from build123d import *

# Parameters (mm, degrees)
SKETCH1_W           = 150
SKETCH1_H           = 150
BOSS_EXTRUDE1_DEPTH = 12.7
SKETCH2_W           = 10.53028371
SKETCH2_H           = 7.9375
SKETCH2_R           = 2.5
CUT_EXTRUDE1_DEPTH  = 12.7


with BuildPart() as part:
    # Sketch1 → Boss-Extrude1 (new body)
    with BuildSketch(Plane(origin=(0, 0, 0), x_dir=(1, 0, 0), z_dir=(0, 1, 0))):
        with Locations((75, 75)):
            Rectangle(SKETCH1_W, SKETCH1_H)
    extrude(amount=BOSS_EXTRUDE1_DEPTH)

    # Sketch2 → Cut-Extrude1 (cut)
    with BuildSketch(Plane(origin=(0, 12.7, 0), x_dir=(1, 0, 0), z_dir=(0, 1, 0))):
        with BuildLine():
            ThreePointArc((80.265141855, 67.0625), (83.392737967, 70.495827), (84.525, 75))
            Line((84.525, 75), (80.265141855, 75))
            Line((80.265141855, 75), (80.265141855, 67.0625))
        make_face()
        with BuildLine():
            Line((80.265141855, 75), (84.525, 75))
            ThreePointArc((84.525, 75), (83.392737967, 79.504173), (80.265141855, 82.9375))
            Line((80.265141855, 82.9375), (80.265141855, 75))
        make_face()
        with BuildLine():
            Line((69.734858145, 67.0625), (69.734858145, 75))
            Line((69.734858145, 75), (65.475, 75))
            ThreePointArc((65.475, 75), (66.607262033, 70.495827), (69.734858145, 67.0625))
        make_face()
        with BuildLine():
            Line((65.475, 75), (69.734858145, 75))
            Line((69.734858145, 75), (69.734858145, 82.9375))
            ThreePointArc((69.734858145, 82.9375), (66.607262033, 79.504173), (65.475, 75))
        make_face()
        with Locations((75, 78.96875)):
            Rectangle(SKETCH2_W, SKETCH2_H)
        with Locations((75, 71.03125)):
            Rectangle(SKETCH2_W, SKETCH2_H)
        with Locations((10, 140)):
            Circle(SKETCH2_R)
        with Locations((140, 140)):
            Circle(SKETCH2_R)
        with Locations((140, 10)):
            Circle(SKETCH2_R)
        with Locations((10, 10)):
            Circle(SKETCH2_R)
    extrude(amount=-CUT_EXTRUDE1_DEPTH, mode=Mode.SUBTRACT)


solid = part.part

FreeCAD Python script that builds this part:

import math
import FreeCAD as App
import Part
import Sketcher


def add_polygon(sketch, points):
    """Adds a closed chain of lines whose ends are joined by coincident constraints."""
    first, n = sketch.GeometryCount, len(points)
    for a, b in zip(points, points[1:] + points[:1]):
        sketch.addGeometry(Part.LineSegment(App.Vector(*a, 0), App.Vector(*b, 0)), False)
    for i in range(n):
        sketch.addConstraint(Sketcher.Constraint("Coincident", first + i, 2, first + (i + 1) % n, 1))

doc = App.newDocument("Part")
body = doc.addObject("PartDesign::Body", "Body")

sketch1 = body.newObject("Sketcher::SketchObject", "Sketch")
sketch1.AttachmentSupport = (doc.getObject("XZ_Plane"), [""])
sketch1.MapMode = "FlatFace"
add_polygon(sketch1, [(0, -150), (0, 0), (150, 0), (150, -150)])
sketch1.addConstraint([
    Sketcher.Constraint("Vertical", 0),
    Sketcher.Constraint("Horizontal", 1),
    Sketcher.Constraint("Vertical", 2),
    Sketcher.Constraint("Horizontal", 3),
    Sketcher.Constraint("Coincident", 0, 2, -1, 1),
    Sketcher.Constraint("Equal", 3, 0),
    Sketcher.Constraint("DistanceX", 1, 1, 1, 2, 150.0),
])
pad1 = body.newObject("PartDesign::Pad", "Pad")
pad1.Profile = sketch1
pad1.Length = 12.7
pad1.Reversed = True

sketch2 = body.newObject("Sketcher::SketchObject", "Sketch001")
sketch2.AttachmentSupport = (doc.getObject("XZ_Plane"), [""])
sketch2.MapMode = "FlatFace"
sketch2.AttachmentOffset = App.Placement(App.Vector(0, 0, -12.7), App.Rotation())
sketch2.addGeometry([
    Part.ArcOfCircle(Part.Circle(App.Vector(75, -75, 0), App.Vector(0, 0, 1), 9.5), math.radians(0), math.radians(56)),
    Part.ArcOfCircle(Part.Circle(App.Vector(75, -75, 0), App.Vector(0, 0, 1), 9.5), math.radians(-56), math.radians(0)),
    Part.LineSegment(App.Vector(80.3, -82.9, 0), App.Vector(69.7, -82.9, 0)),
    Part.ArcOfCircle(Part.Circle(App.Vector(75, -75, 0), App.Vector(0, 0, 1), 9.5), math.radians(-180), math.radians(-124)),
    Part.ArcOfCircle(Part.Circle(App.Vector(75, -75, 0), App.Vector(0, 0, 1), 9.5), math.radians(124), math.radians(180)),
    Part.LineSegment(App.Vector(69.7, -67.1, 0), App.Vector(80.3, -67.1, 0)),
    Part.Circle(App.Vector(10, -140, 0), App.Vector(0, 0, 1), 2.5),
    Part.Circle(App.Vector(140, -140, 0), App.Vector(0, 0, 1), 2.5),
    Part.Circle(App.Vector(140, -10, 0), App.Vector(0, 0, 1), 2.5),
    Part.Circle(App.Vector(10, -10, 0), App.Vector(0, 0, 1), 2.5),
], False)
sketch2.addConstraint([
    Sketcher.Constraint("Tangent", 0, 1, 1, 2),
    Sketcher.Constraint("Coincident", 1, 1, 2, 1),
    Sketcher.Constraint("Coincident", 2, 2, 3, 2),
    Sketcher.Constraint("Tangent", 3, 1, 4, 2),
    Sketcher.Constraint("Coincident", 4, 1, 5, 1),
    Sketcher.Constraint("Coincident", 5, 2, 0, 2),
    Sketcher.Constraint("Horizontal", 2),
    Sketcher.Constraint("Horizontal", 5),
    Sketcher.Constraint("Coincident", 3, 3, 0, 3),
    Sketcher.Constraint("Equal", 0, 1),
    Sketcher.Constraint("Equal", 1, 3),
    Sketcher.Constraint("Equal", 3, 4),
    Sketcher.Constraint("Equal", 6, 7),
    Sketcher.Constraint("Equal", 7, 8),
    Sketcher.Constraint("Equal", 8, 9),
    Sketcher.Constraint("Horizontal", 6, 3, 7, 3),
    Sketcher.Constraint("Horizontal", 8, 3, 9, 3),
    Sketcher.Constraint("Horizontal", 4, 3, 0, 1),
    Sketcher.Constraint("Horizontal", 0, 1, 3, 1),
    Sketcher.Constraint("Vertical", 7, 3, 8, 3),
    Sketcher.Constraint("Vertical", 6, 3, 9, 3),
    Sketcher.Constraint("Vertical", 2, 2, 4, 1),
    Sketcher.Constraint("Diameter", 6, 5.0),
    Sketcher.Constraint("DistanceX", -1, 1, 0, 3, 75.0),
    Sketcher.Constraint("DistanceY", 0, 3, -1, 1, 75.0),
    Sketcher.Constraint("DistanceX", -1, 1, 6, 3, 10.0),
    Sketcher.Constraint("DistanceY", 6, 3, -1, 1, 140.0),
    Sketcher.Constraint("DistanceX", -1, 1, 7, 3, 140.0),
    Sketcher.Constraint("DistanceY", 8, 3, -1, 1, 10.0),
    Sketcher.Constraint("Radius", 0, 9.525),
    Sketcher.Constraint("DistanceY", 1, 1, -1, 1, 82.9375),
])
pocket1 = body.newObject("PartDesign::Pocket", "Pocket")
pocket1.Profile = sketch2
pocket1.Length = 12.7
pocket1.Reversed = True

doc.recompute()
